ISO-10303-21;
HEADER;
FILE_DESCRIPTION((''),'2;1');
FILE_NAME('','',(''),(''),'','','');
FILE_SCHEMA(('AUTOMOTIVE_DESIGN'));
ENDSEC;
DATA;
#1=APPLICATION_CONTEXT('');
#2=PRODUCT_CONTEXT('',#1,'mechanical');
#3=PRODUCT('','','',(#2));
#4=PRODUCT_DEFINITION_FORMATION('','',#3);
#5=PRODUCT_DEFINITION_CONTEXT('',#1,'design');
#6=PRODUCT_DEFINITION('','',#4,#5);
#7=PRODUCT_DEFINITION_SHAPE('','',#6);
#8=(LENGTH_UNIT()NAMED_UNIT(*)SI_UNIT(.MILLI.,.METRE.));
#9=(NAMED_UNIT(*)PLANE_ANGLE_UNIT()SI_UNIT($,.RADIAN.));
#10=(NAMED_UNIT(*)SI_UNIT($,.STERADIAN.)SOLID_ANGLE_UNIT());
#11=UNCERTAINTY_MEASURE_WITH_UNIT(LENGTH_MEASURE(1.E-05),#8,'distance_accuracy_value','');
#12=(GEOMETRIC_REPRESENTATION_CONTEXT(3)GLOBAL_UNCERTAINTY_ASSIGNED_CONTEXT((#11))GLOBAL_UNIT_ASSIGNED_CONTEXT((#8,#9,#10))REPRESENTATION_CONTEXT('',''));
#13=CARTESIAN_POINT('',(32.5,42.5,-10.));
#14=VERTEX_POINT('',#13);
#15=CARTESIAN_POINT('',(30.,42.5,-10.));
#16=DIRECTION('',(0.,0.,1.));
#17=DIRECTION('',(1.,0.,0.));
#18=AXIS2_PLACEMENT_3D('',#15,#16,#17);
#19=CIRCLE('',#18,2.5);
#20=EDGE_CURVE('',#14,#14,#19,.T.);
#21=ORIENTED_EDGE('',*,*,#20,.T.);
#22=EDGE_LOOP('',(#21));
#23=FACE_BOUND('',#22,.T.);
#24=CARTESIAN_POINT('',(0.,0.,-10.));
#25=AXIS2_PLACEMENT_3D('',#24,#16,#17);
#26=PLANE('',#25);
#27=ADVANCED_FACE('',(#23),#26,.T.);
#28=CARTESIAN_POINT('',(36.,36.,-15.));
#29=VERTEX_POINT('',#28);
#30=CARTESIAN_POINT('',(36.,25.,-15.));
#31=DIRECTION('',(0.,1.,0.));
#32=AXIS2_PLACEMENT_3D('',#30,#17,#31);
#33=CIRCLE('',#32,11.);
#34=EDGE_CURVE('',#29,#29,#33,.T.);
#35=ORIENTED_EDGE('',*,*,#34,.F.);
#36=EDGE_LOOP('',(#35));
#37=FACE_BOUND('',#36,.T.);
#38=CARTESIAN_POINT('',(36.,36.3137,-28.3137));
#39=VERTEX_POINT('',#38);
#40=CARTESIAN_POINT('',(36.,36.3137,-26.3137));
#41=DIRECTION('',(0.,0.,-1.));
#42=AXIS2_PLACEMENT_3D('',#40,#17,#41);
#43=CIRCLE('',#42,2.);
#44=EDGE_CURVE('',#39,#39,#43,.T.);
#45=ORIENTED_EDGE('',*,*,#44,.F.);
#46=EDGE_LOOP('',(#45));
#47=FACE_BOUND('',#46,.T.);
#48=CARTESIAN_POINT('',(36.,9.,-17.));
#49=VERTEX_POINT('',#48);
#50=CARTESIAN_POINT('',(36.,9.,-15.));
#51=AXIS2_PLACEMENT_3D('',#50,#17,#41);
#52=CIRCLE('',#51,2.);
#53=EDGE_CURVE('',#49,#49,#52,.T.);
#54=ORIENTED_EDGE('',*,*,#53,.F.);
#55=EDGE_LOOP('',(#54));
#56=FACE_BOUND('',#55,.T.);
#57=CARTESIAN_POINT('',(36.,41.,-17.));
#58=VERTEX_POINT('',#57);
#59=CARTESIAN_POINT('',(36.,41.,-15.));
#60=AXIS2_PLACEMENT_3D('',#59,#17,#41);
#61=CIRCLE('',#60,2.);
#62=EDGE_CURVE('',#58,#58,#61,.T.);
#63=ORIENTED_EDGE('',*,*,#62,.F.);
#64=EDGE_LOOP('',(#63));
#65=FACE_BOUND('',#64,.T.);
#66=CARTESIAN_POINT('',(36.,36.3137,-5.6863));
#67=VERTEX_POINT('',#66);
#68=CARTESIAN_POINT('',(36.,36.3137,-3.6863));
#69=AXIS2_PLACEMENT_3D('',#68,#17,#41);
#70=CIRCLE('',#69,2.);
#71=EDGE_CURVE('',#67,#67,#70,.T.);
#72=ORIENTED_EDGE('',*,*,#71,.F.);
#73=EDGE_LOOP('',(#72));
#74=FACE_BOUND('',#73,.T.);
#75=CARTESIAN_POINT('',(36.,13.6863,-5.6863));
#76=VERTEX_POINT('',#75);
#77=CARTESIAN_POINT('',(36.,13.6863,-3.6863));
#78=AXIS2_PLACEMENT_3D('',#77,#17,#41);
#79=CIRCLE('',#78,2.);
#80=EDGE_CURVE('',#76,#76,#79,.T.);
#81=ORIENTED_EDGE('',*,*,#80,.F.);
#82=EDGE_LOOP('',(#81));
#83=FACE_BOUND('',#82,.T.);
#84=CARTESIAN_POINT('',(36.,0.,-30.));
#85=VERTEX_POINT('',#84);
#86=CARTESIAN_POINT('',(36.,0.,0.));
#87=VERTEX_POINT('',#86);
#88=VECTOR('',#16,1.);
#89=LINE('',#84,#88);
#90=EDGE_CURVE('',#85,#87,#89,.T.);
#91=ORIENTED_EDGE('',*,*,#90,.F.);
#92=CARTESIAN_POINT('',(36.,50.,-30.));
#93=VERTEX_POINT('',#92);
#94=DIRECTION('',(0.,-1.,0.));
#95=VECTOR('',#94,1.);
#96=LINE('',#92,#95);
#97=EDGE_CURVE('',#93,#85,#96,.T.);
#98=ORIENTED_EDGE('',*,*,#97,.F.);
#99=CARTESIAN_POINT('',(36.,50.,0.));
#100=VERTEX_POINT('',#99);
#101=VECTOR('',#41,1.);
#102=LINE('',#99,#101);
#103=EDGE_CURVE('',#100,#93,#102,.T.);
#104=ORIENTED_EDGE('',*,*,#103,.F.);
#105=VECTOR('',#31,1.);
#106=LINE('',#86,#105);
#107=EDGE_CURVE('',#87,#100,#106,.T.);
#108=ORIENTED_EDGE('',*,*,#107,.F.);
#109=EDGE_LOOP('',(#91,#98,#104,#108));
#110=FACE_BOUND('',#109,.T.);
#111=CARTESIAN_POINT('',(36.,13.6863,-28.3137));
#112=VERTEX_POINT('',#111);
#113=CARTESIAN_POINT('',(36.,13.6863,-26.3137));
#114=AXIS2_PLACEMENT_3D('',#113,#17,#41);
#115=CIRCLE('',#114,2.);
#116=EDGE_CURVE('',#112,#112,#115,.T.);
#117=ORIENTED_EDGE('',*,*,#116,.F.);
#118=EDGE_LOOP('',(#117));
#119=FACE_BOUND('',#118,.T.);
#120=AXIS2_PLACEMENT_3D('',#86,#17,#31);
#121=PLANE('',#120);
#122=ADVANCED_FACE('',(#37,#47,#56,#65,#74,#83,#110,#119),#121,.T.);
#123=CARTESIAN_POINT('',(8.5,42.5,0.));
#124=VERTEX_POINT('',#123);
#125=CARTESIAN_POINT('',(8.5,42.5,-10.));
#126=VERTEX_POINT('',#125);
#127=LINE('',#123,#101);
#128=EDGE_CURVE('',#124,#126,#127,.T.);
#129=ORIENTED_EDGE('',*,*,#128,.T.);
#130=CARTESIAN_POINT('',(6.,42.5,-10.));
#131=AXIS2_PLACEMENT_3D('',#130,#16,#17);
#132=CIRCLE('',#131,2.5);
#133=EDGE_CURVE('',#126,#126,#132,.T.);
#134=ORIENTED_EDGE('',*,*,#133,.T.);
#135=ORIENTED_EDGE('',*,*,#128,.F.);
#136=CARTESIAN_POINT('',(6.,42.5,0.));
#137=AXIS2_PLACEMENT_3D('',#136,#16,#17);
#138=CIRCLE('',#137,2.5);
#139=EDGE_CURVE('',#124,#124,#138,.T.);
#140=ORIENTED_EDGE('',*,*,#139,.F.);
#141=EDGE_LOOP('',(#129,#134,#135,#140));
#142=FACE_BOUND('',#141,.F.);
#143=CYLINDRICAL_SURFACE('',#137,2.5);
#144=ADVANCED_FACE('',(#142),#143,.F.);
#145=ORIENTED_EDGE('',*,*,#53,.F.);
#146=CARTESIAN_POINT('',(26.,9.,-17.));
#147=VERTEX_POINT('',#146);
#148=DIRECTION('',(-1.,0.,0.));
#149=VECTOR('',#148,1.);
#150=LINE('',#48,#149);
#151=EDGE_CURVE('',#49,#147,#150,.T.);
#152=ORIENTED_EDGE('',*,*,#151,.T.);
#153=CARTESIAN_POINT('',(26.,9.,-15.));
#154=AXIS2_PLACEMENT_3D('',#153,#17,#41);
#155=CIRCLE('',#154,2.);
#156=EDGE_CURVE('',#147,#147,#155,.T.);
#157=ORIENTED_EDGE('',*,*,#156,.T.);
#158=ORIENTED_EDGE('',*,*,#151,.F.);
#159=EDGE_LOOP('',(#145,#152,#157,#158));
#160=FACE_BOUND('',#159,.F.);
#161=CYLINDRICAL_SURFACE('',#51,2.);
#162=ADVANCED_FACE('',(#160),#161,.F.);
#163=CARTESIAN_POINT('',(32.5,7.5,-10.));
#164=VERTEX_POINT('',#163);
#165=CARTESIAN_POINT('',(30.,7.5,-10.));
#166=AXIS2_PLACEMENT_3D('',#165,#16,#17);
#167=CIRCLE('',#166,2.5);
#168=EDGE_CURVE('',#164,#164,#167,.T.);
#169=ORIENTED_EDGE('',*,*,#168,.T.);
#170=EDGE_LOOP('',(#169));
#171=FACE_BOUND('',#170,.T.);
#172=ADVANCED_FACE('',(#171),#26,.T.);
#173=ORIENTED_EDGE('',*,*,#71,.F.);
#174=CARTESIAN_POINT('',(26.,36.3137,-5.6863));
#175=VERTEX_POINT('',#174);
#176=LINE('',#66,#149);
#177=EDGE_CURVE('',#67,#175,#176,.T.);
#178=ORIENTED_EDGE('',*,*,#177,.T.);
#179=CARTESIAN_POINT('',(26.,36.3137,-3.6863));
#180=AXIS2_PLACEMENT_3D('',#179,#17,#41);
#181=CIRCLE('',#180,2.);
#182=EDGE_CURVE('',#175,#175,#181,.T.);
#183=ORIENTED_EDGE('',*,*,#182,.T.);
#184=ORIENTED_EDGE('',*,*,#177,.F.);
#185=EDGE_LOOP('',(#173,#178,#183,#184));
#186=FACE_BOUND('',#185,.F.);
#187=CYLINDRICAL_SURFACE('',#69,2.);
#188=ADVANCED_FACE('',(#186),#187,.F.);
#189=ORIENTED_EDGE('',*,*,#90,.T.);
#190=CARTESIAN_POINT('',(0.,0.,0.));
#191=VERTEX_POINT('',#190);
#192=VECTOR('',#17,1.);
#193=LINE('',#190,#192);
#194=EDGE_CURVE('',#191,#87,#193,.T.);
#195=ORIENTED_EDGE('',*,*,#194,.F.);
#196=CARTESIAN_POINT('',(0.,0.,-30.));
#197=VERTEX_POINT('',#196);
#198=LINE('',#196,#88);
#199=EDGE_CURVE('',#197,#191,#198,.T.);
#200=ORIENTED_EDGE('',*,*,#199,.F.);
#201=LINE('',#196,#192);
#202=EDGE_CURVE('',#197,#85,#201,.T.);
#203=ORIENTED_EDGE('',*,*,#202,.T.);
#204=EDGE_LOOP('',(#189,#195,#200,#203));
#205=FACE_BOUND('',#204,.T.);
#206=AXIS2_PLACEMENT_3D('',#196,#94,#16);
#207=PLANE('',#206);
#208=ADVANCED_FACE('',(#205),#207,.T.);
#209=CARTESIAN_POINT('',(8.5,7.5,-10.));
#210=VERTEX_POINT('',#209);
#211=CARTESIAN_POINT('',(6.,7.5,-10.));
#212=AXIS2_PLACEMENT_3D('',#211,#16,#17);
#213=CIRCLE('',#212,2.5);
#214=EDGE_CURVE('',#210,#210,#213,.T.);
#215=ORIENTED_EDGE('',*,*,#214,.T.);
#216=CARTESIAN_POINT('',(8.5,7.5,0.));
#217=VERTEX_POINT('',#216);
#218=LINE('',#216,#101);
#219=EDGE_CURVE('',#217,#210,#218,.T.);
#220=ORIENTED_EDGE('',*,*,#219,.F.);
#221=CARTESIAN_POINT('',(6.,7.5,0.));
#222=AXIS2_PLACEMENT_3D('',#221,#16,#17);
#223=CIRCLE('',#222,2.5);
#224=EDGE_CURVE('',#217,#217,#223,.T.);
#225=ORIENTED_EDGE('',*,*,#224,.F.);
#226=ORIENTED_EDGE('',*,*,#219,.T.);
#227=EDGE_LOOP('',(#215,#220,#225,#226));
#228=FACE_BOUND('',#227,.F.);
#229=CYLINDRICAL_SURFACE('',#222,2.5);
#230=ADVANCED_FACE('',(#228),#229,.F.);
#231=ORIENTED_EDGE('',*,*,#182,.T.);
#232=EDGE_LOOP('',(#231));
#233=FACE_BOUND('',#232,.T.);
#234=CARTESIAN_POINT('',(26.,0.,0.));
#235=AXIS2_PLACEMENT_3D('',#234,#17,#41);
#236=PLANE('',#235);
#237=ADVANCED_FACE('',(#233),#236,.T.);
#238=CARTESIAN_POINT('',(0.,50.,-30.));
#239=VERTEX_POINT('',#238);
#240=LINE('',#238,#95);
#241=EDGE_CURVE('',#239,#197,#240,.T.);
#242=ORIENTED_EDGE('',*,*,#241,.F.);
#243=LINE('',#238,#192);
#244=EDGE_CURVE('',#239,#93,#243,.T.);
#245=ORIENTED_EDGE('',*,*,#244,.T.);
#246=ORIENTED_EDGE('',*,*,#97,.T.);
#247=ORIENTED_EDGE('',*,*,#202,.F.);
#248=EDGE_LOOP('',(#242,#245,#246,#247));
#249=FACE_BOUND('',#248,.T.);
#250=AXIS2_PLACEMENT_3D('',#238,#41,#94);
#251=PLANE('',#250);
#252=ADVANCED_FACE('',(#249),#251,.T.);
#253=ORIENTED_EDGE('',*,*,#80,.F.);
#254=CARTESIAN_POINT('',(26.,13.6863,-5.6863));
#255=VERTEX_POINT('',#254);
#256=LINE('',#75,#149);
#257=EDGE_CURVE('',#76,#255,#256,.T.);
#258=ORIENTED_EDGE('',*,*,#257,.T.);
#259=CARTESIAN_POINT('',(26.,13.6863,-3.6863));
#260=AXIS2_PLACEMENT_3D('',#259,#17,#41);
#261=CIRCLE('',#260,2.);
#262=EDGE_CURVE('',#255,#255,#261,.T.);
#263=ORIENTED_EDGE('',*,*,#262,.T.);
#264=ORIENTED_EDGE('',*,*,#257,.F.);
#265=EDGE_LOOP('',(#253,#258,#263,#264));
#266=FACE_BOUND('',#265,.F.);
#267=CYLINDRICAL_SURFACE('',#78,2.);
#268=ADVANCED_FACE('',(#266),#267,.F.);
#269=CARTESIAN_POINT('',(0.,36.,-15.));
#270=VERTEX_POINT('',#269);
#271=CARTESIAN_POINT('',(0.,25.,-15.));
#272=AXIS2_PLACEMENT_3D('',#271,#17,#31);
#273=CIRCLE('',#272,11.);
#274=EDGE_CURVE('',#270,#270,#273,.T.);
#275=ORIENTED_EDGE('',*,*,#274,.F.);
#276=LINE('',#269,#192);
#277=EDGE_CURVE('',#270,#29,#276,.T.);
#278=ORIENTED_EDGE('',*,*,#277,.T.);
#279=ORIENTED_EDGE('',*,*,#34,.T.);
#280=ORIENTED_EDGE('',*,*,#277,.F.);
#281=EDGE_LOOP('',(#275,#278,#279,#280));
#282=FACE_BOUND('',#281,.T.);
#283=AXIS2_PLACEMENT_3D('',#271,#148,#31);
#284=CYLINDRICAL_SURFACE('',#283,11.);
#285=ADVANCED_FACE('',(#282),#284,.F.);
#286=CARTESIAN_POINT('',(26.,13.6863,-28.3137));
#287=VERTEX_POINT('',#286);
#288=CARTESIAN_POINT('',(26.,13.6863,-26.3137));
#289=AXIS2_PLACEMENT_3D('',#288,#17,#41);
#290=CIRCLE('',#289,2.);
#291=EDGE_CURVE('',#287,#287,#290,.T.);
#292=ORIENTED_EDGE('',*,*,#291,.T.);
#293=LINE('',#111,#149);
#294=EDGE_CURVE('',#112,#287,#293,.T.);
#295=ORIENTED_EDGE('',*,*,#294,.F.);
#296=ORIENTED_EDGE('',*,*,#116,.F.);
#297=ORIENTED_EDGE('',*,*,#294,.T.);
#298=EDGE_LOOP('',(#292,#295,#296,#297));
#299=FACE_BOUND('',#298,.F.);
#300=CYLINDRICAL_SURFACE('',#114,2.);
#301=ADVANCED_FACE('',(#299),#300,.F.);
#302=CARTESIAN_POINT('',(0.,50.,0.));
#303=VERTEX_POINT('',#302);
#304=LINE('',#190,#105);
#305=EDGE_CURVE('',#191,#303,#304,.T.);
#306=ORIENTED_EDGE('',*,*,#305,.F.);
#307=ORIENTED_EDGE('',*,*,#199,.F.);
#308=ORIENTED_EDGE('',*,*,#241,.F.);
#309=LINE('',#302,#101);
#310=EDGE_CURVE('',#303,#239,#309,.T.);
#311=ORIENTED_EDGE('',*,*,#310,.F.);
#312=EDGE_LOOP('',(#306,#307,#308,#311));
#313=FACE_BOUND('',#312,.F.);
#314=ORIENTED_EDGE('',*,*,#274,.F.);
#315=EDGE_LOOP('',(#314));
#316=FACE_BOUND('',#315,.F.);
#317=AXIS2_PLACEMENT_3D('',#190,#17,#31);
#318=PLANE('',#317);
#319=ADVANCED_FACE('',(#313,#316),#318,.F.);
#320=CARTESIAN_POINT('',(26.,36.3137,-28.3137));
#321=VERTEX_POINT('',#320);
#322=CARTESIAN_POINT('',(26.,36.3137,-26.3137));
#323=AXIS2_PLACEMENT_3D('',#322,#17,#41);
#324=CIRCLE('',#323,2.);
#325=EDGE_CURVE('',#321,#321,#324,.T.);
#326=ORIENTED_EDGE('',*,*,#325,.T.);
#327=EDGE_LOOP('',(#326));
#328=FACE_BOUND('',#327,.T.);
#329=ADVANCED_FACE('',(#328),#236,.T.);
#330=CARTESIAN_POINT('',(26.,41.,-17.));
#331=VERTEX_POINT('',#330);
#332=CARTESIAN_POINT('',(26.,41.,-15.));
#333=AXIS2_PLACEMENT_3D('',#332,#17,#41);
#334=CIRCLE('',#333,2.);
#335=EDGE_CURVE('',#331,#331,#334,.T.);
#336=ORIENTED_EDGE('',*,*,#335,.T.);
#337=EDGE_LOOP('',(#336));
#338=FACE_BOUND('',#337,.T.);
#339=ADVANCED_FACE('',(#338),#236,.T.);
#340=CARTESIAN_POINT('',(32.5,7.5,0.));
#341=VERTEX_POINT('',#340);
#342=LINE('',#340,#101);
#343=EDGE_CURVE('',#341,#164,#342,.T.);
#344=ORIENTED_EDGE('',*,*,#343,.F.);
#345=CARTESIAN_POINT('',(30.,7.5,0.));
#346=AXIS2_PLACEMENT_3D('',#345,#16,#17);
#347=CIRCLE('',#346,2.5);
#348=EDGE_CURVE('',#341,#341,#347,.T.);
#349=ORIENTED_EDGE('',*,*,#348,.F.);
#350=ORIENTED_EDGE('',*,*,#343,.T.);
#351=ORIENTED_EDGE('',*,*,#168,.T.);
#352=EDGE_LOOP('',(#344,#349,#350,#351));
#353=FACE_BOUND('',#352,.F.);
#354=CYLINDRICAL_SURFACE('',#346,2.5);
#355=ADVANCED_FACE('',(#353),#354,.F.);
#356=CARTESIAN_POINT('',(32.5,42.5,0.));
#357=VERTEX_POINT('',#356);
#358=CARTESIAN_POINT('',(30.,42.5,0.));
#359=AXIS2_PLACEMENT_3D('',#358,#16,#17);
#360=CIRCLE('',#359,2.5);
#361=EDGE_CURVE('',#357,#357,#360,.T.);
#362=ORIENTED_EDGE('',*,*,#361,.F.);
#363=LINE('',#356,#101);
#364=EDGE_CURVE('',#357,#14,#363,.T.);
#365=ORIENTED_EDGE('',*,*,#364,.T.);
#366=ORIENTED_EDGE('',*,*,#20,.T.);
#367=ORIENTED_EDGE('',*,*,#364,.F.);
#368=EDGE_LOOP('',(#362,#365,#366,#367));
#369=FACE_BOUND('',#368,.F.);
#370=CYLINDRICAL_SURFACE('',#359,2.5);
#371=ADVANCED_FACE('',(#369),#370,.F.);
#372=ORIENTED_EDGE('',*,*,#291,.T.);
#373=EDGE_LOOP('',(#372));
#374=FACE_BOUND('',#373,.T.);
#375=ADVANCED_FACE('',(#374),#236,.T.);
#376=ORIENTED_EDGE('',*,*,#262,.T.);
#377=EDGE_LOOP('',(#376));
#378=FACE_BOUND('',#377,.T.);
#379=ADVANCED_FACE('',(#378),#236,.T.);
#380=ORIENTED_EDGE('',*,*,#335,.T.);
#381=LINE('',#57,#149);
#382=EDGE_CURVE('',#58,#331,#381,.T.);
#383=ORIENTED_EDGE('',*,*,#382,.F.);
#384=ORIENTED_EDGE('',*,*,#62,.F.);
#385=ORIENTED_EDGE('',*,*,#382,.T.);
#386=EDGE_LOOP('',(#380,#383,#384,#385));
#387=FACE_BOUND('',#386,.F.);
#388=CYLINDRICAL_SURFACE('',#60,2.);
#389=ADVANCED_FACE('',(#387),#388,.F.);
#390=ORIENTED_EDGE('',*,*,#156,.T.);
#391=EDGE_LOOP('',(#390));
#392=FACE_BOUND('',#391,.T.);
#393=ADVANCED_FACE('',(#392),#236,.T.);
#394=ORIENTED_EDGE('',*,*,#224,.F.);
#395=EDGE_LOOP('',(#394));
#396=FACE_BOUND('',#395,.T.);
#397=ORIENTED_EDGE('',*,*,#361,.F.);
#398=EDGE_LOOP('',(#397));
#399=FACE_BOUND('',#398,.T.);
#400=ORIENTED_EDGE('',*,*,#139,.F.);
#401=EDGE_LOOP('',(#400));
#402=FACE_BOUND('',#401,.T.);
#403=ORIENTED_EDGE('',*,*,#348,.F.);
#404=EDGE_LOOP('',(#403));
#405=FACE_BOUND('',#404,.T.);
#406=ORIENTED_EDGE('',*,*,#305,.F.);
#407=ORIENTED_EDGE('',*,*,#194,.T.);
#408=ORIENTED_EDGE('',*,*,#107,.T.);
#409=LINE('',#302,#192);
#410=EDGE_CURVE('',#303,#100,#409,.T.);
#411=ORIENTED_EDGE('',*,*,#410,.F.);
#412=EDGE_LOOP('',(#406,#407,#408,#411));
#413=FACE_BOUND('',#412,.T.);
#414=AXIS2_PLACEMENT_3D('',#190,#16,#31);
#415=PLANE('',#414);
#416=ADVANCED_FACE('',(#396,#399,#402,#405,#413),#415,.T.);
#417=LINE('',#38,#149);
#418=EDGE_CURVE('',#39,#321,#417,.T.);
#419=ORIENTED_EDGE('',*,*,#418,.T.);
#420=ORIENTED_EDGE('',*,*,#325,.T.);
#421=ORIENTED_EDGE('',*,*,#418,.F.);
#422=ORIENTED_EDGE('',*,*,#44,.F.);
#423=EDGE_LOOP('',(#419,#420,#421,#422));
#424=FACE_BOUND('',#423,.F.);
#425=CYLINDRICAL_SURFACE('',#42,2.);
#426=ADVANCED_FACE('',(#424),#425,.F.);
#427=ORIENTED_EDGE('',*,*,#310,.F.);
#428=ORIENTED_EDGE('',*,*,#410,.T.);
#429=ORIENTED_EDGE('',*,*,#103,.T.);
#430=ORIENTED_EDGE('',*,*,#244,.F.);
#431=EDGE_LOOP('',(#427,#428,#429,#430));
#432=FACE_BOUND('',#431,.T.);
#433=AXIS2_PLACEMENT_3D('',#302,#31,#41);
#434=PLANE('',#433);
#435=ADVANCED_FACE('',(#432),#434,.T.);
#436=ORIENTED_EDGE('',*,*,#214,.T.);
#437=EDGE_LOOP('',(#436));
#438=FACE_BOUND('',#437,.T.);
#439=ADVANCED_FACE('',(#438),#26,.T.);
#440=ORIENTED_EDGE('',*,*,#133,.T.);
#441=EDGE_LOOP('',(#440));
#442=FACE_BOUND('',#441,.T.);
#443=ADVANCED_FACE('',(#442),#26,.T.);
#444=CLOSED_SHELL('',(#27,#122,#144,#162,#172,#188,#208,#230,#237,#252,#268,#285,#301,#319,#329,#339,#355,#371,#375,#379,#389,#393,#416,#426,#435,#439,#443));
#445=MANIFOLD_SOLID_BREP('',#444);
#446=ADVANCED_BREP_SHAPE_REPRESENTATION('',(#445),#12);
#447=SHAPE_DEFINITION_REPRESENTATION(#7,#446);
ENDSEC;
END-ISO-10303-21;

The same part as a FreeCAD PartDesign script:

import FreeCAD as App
import Part
import Sketcher
from FreeCAD import Vector

doc = App.newDocument("Part")
body = doc.addObject("PartDesign::Body", "Body")

sketch1 = body.newObject("Sketcher::SketchObject", "Sketch")
sketch1.AttachmentSupport = (doc.getObject("YZ_Plane"), [""])
sketch1.MapMode = "FlatFace"
sketch1.addGeometry([
    Part.LineSegment(Vector(50, 0, 0), Vector(0, 0, 0)),
    Part.LineSegment(Vector(0, 0, 0), Vector(0, -30, 0)),
    Part.LineSegment(Vector(0, -30, 0), Vector(50, -30, 0)),
    Part.LineSegment(Vector(50, -30, 0), Vector(50, 0, 0)),
    Part.Circle(Vector(25, -15, 0), Vector(0, 0, 1), 11),
], False)
sketch1.addConstraint([
    Sketcher.Constraint("Coincident", 0, 2, 1, 1),
    Sketcher.Constraint("Coincident", 1, 2, 2, 1),
    Sketcher.Constraint("Coincident", 2, 2, 3, 1),
    Sketcher.Constraint("Coincident", 3, 2, 0, 1),
    Sketcher.Constraint("Horizontal", 0),
    Sketcher.Constraint("Vertical", 1),
    Sketcher.Constraint("Horizontal", 2),
    Sketcher.Constraint("Vertical", 3),
    Sketcher.Constraint("Coincident", 0, 2, -1, 1),
    Sketcher.Constraint("Diameter", 4, 22.0),
    Sketcher.Constraint("DistanceX", 0, 2, 0, 1, 50.0),
    Sketcher.Constraint("DistanceY", 1, 2, 1, 1, 30.0),
    Sketcher.Constraint("DistanceX", -1, 1, 4, 3, 25.0),
    Sketcher.Constraint("DistanceY", 4, 3, -1, 1, 15.0),
])
pad1 = body.newObject("PartDesign::Pad", "Pad")
pad1.Profile = sketch1
pad1.Length = 36

sketch2 = body.newObject("Sketcher::SketchObject", "Sketch001")
sketch2.AttachmentSupport = (doc.getObject("YZ_Plane"), [""])
sketch2.MapMode = "FlatFace"
sketch2.AttachmentOffset = App.Placement(Vector(0, 0, 36), App.Rotation())
sketch2.addGeometry([
    Part.Circle(Vector(41, -15, 0), Vector(0, 0, 1), 2),
    Part.Circle(Vector(36.3, -3.7, 0), Vector(0, 0, 1), 2),
    Part.Circle(Vector(13.7, -3.7, 0), Vector(0, 0, 1), 2),
    Part.Circle(Vector(9, -15, 0), Vector(0, 0, 1), 2),
    Part.Circle(Vector(13.7, -26.3, 0), Vector(0, 0, 1), 2),
    Part.Circle(Vector(36.3, -26.3, 0), Vector(0, 0, 1), 2),
], False)
sketch2.addConstraint([
    Sketcher.Constraint("Equal", 0, 1),
    Sketcher.Constraint("Equal", 1, 2),
    Sketcher.Constraint("Equal", 2, 3),
    Sketcher.Constraint("Equal", 3, 4),
    Sketcher.Constraint("Equal", 4, 5),
    Sketcher.Constraint("Horizontal", 1, 3, 2, 3),
    Sketcher.Constraint("Horizontal", 0, 3, 3, 3),
    Sketcher.Constraint("Horizontal", 4, 3, 5, 3),
    Sketcher.Constraint("Vertical", 2, 3, 4, 3),
    Sketcher.Constraint("Vertical", 1, 3, 5, 3),
    Sketcher.Constraint("Diameter", 0, 4.0),
    Sketcher.Constraint("DistanceX", 3, 3, 0, 3, 32.0),
    Sketcher.Constraint("DistanceX", -1, 1, 0, 3, 41.0),
    Sketcher.Constraint("DistanceY", 0, 3, -1, 1, 15.0),
    Sketcher.Constraint("DistanceX", -1, 1, 1, 3, 36.3137),
    Sketcher.Constraint("DistanceY", 1, 3, -1, 1, 3.6863),
    Sketcher.Constraint("DistanceX", -1, 1, 2, 3, 13.6863),
    Sketcher.Constraint("DistanceY", 4, 3, -1, 1, 26.3137),
])
pocket1 = body.newObject("PartDesign::Pocket", "Pocket")
pocket1.Profile = sketch2
pocket1.Length = 10

sketch3 = body.newObject("Sketcher::SketchObject", "Sketch002")
sketch3.AttachmentSupport = (doc.getObject("XY_Plane"), [""])
sketch3.MapMode = "FlatFace"
sketch3.addGeometry([
    Part.Circle(Vector(6, 42.5, 0), Vector(0, 0, 1), 2.5),
    Part.Circle(Vector(30, 42.5, 0), Vector(0, 0, 1), 2.5),
    Part.Circle(Vector(6, 7.5, 0), Vector(0, 0, 1), 2.5),
    Part.Circle(Vector(30, 7.5, 0), Vector(0, 0, 1), 2.5),
], False)
sketch3.addConstraint([
    Sketcher.Constraint("Equal", 0, 1),
    Sketcher.Constraint("Equal", 1, 2),
    Sketcher.Constraint("Equal", 2, 3),
    Sketcher.Constraint("Horizontal", 0, 3, 1, 3),
    Sketcher.Constraint("Horizontal", 2, 3, 3, 3),
    Sketcher.Constraint("Vertical", 0, 3, 2, 3),
    Sketcher.Constraint("Vertical", 1, 3, 3, 3),
    Sketcher.Constraint("Diameter", 0, 5.0),
    Sketcher.Constraint("DistanceX", -1, 1, 0, 3, 6.0),
    Sketcher.Constraint("DistanceX", 0, 3, 1, 3, 24.0),
    Sketcher.Constraint("DistanceY", 2, 3, 0, 3, 35.0),
    Sketcher.Constraint("DistanceY", -1, 1, 0, 3, 42.5),
])
pocket2 = body.newObject("PartDesign::Pocket", "Pocket001")
pocket2.Profile = sketch3
pocket2.Length = 10

doc.recompute()
